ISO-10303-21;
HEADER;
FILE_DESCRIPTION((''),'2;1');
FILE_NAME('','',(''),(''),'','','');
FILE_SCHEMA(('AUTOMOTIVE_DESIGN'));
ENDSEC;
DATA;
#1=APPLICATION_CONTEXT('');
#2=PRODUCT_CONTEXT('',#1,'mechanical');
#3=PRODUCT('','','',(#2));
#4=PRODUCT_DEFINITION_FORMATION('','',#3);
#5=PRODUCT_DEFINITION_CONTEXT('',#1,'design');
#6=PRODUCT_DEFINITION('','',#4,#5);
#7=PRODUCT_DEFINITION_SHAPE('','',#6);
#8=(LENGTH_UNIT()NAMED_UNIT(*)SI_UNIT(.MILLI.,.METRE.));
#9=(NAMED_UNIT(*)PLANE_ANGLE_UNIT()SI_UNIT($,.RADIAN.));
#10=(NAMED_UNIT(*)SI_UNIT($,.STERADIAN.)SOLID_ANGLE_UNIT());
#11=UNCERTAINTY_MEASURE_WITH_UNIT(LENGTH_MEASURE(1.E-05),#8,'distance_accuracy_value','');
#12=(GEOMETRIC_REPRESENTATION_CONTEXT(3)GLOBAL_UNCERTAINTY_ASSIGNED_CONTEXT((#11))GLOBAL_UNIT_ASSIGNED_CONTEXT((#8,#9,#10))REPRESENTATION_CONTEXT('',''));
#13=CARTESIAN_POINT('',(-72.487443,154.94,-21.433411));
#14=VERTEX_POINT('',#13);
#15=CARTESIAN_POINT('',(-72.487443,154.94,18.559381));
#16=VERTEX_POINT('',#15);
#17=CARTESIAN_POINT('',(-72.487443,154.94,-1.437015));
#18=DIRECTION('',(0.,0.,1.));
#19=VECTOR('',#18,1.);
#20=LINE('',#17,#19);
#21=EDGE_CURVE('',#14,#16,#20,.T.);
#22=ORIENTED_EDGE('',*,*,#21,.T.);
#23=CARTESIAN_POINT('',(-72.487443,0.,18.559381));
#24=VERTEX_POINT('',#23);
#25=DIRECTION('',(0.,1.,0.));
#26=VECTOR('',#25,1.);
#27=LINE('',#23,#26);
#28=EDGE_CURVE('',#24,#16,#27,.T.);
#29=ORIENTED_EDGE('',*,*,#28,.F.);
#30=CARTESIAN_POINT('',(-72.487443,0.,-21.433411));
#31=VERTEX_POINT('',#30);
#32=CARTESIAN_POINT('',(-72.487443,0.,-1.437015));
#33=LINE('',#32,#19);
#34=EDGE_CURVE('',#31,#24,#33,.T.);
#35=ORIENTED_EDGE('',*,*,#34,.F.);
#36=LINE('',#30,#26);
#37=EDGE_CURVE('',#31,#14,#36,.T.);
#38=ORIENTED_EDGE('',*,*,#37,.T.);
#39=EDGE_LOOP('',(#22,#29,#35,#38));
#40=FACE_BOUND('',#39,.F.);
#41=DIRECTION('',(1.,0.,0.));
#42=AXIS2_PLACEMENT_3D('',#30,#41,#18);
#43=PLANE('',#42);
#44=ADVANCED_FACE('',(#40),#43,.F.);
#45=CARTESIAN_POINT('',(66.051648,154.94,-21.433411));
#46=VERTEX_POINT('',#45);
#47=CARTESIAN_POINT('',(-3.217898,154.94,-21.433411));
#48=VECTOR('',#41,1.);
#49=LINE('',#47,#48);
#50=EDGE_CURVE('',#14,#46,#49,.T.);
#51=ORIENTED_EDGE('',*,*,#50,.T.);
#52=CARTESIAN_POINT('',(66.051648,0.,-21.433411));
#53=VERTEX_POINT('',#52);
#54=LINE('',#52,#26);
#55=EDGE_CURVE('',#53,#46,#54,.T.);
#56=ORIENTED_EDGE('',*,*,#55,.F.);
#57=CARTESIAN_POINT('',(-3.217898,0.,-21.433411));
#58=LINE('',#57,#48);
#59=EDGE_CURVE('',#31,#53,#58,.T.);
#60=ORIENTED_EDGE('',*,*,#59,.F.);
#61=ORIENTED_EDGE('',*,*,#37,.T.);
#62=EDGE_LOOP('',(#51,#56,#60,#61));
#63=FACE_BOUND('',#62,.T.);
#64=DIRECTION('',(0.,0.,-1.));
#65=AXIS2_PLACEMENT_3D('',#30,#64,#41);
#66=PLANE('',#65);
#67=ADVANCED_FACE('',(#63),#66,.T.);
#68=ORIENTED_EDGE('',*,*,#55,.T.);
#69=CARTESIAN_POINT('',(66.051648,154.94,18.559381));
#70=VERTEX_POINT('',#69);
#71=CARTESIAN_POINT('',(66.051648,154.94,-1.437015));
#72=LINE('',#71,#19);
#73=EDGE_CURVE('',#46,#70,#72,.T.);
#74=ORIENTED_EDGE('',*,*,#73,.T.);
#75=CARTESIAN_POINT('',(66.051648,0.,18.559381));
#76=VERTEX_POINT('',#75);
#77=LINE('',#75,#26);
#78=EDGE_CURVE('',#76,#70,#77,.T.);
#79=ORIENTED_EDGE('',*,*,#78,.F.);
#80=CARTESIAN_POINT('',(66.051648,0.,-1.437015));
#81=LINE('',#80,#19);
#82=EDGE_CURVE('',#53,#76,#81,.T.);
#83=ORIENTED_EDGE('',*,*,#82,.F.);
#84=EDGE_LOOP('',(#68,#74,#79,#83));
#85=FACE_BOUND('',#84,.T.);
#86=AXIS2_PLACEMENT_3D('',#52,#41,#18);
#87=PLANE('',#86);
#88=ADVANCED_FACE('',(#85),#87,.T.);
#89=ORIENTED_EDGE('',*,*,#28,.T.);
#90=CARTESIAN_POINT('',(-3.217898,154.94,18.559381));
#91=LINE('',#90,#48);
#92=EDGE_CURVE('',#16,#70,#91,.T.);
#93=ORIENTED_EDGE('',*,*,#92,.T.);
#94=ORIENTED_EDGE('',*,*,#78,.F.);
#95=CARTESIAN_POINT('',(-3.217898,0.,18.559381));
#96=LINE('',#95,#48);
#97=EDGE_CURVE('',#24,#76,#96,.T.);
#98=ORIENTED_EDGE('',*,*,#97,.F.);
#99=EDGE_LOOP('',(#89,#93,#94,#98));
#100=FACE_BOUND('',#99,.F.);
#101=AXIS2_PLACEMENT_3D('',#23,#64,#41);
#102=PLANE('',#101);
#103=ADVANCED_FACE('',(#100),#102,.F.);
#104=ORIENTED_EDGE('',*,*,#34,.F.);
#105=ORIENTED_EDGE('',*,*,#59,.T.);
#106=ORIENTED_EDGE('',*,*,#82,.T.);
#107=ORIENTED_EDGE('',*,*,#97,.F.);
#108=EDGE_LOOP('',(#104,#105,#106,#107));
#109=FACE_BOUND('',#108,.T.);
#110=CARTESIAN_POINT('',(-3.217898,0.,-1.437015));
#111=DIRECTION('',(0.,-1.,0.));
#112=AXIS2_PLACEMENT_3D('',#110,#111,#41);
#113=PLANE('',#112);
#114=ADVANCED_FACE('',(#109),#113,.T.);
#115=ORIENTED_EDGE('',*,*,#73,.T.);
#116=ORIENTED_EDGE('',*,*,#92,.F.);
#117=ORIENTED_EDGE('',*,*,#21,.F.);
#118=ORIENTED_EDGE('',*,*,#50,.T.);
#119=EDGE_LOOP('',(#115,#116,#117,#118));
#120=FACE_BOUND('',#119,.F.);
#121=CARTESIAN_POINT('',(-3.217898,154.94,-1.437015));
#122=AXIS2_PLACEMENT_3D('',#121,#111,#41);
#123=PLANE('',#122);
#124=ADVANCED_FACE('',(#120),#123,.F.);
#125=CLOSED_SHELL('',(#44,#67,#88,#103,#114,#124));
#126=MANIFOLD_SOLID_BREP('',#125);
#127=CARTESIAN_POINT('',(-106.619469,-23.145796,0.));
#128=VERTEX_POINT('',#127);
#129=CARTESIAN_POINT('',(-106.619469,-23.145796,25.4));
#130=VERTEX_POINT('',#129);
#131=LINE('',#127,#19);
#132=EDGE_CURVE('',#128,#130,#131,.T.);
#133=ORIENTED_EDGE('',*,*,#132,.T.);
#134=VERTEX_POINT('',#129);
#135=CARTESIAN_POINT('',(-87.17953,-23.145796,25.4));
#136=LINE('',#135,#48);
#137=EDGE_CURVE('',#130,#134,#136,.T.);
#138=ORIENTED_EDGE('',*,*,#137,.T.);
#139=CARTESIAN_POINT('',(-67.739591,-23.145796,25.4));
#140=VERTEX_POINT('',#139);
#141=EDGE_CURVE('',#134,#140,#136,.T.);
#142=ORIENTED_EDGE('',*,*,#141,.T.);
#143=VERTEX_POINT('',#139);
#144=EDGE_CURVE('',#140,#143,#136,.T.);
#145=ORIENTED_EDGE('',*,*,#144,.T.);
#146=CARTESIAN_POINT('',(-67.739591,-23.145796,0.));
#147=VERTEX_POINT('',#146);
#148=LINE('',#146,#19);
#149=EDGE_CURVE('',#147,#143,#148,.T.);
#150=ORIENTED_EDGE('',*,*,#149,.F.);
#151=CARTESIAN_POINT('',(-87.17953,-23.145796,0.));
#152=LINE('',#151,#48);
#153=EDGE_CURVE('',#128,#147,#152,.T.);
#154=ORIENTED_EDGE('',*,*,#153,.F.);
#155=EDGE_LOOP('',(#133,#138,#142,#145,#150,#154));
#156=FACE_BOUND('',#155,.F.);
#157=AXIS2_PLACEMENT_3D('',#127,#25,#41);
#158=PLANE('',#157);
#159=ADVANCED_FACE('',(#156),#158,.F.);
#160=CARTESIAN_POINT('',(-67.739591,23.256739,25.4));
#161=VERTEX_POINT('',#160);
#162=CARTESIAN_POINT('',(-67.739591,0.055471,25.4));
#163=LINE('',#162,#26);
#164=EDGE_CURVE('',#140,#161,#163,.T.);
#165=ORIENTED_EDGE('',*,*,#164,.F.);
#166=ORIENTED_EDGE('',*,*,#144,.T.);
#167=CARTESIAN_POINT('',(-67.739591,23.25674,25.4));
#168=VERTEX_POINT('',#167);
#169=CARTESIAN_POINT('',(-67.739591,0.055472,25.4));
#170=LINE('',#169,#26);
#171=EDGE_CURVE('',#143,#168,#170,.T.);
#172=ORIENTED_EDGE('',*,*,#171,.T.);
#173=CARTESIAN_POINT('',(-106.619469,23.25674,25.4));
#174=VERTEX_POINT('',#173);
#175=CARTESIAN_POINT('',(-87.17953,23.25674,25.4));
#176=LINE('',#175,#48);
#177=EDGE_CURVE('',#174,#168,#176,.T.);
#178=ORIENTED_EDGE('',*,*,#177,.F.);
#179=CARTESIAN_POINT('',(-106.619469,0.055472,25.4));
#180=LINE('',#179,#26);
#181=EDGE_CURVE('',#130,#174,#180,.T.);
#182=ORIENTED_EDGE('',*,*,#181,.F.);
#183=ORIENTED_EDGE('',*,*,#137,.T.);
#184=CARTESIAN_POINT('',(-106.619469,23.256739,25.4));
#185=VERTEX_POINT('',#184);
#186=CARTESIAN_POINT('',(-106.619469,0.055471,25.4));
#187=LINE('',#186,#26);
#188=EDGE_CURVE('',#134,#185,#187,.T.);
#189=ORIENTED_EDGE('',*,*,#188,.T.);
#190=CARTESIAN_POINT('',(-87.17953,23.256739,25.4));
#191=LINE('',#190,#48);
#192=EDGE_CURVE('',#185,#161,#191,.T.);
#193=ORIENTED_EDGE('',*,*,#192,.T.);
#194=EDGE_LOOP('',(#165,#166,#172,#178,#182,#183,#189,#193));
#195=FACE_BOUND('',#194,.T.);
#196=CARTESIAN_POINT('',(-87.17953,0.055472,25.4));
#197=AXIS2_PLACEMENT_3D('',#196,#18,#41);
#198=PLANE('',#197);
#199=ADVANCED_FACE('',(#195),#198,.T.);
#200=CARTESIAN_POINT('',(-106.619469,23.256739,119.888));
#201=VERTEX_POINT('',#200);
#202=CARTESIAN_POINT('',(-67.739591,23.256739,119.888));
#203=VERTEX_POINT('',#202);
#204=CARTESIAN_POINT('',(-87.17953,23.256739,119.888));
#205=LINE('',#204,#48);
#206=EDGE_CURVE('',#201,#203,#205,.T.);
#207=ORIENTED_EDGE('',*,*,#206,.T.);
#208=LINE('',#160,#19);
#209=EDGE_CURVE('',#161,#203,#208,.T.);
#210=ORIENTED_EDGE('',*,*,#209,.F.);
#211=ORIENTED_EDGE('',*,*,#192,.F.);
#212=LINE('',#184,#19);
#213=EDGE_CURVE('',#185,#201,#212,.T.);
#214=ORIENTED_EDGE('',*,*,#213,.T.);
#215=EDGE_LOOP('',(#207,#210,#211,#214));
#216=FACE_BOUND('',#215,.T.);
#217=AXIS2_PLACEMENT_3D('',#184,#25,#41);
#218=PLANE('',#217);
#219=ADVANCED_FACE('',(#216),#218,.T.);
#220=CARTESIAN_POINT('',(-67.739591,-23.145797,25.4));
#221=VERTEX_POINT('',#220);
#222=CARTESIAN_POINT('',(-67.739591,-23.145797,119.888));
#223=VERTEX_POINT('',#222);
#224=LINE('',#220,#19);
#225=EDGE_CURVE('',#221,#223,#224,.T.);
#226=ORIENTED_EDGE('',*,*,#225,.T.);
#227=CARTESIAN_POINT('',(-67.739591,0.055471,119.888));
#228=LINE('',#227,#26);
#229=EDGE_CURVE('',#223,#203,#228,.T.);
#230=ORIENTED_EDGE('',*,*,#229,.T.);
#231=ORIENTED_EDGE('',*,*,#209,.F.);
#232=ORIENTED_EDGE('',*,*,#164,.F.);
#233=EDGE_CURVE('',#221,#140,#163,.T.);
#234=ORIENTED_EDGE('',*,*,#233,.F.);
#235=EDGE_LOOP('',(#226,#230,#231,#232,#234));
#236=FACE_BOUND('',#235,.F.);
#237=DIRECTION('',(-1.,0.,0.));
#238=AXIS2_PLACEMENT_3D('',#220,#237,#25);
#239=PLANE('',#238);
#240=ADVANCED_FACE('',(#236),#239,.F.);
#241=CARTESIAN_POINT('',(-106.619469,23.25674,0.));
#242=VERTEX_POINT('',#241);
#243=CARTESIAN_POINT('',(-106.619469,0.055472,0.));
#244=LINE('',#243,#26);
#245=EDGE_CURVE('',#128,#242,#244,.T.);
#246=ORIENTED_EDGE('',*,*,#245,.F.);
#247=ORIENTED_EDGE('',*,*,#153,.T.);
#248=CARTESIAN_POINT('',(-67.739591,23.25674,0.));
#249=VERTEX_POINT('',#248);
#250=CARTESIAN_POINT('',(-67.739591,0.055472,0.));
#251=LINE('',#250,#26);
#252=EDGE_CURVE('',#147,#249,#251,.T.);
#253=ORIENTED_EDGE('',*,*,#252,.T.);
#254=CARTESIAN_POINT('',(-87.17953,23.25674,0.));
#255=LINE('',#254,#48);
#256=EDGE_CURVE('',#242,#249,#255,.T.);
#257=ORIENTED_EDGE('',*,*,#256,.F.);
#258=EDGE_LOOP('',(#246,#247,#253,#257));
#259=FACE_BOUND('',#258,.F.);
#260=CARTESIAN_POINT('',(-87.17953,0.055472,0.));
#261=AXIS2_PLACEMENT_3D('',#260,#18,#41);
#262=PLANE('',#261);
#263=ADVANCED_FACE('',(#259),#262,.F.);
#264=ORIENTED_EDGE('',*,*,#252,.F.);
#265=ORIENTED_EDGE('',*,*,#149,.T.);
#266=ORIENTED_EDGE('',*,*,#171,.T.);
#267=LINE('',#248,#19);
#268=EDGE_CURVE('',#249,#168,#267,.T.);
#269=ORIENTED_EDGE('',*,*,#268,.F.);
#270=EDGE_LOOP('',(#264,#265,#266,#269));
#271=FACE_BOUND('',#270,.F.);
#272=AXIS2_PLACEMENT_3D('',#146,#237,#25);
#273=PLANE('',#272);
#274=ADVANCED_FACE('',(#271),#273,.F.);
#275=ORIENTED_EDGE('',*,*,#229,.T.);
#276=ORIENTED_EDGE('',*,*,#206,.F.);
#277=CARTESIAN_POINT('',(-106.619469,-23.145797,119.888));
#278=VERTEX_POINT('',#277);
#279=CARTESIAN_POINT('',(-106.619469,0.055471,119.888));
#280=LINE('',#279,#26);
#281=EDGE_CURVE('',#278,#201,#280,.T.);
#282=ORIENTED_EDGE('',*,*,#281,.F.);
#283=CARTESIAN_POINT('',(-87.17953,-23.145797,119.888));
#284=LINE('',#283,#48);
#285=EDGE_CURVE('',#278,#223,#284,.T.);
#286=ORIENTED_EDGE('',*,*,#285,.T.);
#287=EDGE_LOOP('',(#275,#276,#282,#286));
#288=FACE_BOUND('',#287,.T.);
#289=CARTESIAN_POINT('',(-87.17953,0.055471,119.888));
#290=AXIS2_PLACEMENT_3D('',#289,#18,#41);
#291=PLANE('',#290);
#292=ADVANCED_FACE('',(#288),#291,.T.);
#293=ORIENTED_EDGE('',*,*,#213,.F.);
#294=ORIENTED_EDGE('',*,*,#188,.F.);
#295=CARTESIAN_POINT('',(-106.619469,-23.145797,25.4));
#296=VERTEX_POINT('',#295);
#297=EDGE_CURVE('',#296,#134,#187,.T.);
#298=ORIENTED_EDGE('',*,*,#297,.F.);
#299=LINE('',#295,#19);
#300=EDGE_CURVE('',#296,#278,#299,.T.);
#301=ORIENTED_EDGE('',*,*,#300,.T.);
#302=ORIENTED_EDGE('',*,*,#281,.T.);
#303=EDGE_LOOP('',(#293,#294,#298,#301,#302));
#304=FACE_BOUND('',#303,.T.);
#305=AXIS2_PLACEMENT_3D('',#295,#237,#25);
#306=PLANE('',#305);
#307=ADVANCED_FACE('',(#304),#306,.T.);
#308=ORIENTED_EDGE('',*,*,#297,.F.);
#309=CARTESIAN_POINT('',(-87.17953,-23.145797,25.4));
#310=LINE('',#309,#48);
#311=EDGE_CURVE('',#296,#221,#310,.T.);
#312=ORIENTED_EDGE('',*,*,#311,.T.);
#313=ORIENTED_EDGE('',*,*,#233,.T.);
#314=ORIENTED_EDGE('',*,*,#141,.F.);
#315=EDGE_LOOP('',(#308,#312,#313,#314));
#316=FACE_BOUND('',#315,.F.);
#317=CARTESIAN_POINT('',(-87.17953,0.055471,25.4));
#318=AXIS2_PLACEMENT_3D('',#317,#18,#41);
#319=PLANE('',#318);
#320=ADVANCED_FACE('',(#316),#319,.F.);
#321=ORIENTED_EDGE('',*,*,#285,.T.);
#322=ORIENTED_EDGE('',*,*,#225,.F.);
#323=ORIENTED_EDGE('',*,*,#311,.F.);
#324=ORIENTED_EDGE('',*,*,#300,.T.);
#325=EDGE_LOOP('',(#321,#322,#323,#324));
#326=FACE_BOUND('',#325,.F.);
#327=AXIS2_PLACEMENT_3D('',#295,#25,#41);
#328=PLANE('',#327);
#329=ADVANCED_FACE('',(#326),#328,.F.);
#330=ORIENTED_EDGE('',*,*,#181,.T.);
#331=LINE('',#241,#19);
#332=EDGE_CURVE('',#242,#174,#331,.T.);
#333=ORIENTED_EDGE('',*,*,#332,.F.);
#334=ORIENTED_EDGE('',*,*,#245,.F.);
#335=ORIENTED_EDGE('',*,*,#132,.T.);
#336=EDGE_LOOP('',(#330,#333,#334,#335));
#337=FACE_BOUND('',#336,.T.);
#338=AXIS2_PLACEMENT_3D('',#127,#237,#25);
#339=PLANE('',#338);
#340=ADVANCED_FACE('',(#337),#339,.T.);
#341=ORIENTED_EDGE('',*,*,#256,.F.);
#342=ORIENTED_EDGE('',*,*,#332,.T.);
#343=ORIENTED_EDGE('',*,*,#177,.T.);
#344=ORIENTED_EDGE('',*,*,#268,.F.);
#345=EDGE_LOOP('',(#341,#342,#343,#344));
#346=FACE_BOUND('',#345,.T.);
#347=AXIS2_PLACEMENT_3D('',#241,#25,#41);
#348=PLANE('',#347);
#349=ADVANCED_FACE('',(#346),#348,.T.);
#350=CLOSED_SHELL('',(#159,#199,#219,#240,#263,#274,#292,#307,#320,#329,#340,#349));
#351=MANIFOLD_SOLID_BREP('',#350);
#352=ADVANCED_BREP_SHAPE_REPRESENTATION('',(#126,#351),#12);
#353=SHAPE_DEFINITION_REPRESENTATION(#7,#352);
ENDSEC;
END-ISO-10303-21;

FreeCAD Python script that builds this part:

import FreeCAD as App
import Part
import Sketcher

V = App.Vector
Q = App.Units.Quantity


def add_polygon(sketch, points):
    """Adds a closed chain of lines whose ends are joined by coincident constraints."""
    first, n = sketch.GeometryCount, len(points)
    for a, b in zip(points, points[1:] + points[:1]):
        sketch.addGeometry(Part.LineSegment(App.Vector(*a, 0), App.Vector(*b, 0)), False)
    for i in range(n):
        sketch.addConstraint(Sketcher.Constraint("Coincident", first + i, 2, first + (i + 1) % n, 1))

doc = App.newDocument("Part")
body = doc.addObject("PartDesign::Body", "Body")

# Sketch on XY plane
sketch1 = body.newObject("Sketcher::SketchObject", "Sketch")
sketch1.AttachmentSupport = (doc.getObject("XY_Plane"), [""])
sketch1.MapMode = "FlatFace"
add_polygon(sketch1, [(-106.619469, 23.25674), (-106.619469, -23.145796), (-67.739591, -23.145796), (-67.739591, 23.25674)])  # lines 0-3
sketch1.addConstraint([
    Sketcher.Constraint("Vertical", 0),
    Sketcher.Constraint("Horizontal", 1),
    Sketcher.Constraint("Vertical", 2),
    Sketcher.Constraint("Horizontal", 3),
    Sketcher.Constraint("DistanceX", 1, 1, 1, 2, Q("38.879879 mm")),
    Sketcher.Constraint("DistanceY", 0, 2, 0, 1, Q("46.402537 mm")),
    Sketcher.Constraint("DistanceX", 0, 2, -1, 1, Q("106.619469 mm")),
    Sketcher.Constraint("DistanceY", -1, 1, 2, 2, Q("23.25674 mm")),
])
pad1 = body.newObject("PartDesign::Pad", "Pad")
pad1.Profile = sketch1
pad1.Length = Q("1 in")

# Sketch on XY plane
sketch2 = body.newObject("Sketcher::SketchObject", "Sketch001")
sketch2.AttachmentSupport = (doc.getObject("XY_Plane"), [""])
sketch2.MapMode = "FlatFace"
sketch2.AttachmentOffset = App.Placement(V(0, 0, 1 * 25.4), App.Rotation())
add_polygon(sketch2, [(-106.619469, 23.256739), (-106.619469, -23.145797), (-67.739591, -23.145797), (-67.739591, 23.256739)])  # lines 0-3
sketch2.addConstraint([
    Sketcher.Constraint("Vertical", 0),
    Sketcher.Constraint("Horizontal", 1),
    Sketcher.Constraint("Vertical", 2),
    Sketcher.Constraint("Horizontal", 3),
    Sketcher.Constraint("DistanceX", 1, 1, 1, 2, Q("38.879878 mm")),
    Sketcher.Constraint("DistanceY", 0, 2, 0, 1, Q("46.402536 mm")),
    Sketcher.Constraint("DistanceX", 0, 2, -1, 1, Q("106.619469 mm")),
    Sketcher.Constraint("DistanceY", -1, 1, 2, 2, Q("23.256739 mm")),
])
pad2 = body.newObject("PartDesign::Pad", "Pad001")
pad2.Profile = sketch2
pad2.Length = Q("3.72 in")
body2 = doc.addObject("PartDesign::Body", "Body001")

# Sketch on XZ plane
sketch3 = body2.newObject("Sketcher::SketchObject", "Sketch002")
sketch3.AttachmentSupport = (doc.getObject("XZ_Plane001"), [""])
sketch3.MapMode = "FlatFace"
add_polygon(sketch3, [(-72.487443, 18.559381), (-72.487443, -21.433411), (66.051648, -21.433411), (66.051648, 18.559381)])  # lines 0-3
sketch3.addConstraint([
    Sketcher.Constraint("Vertical", 0),
    Sketcher.Constraint("Horizontal", 1),
    Sketcher.Constraint("Vertical", 2),
    Sketcher.Constraint("Horizontal", 3),
    Sketcher.Constraint("DistanceX", 1, 1, 1, 2, Q("138.539091 mm")),
    Sketcher.Constraint("DistanceY", 0, 2, 0, 1, Q("39.992792 mm")),
    Sketcher.Constraint("DistanceY", 0, 2, -1, 1, Q("21.433411 mm")),
    Sketcher.Constraint("DistanceX", 0, 2, -1, 1, Q("72.487443 mm")),
])
pad3 = body2.newObject("PartDesign::Pad", "Pad002")
pad3.Profile = sketch3
pad3.Length = Q("6.1 in")
pad3.Reversed = True

doc.recompute()
